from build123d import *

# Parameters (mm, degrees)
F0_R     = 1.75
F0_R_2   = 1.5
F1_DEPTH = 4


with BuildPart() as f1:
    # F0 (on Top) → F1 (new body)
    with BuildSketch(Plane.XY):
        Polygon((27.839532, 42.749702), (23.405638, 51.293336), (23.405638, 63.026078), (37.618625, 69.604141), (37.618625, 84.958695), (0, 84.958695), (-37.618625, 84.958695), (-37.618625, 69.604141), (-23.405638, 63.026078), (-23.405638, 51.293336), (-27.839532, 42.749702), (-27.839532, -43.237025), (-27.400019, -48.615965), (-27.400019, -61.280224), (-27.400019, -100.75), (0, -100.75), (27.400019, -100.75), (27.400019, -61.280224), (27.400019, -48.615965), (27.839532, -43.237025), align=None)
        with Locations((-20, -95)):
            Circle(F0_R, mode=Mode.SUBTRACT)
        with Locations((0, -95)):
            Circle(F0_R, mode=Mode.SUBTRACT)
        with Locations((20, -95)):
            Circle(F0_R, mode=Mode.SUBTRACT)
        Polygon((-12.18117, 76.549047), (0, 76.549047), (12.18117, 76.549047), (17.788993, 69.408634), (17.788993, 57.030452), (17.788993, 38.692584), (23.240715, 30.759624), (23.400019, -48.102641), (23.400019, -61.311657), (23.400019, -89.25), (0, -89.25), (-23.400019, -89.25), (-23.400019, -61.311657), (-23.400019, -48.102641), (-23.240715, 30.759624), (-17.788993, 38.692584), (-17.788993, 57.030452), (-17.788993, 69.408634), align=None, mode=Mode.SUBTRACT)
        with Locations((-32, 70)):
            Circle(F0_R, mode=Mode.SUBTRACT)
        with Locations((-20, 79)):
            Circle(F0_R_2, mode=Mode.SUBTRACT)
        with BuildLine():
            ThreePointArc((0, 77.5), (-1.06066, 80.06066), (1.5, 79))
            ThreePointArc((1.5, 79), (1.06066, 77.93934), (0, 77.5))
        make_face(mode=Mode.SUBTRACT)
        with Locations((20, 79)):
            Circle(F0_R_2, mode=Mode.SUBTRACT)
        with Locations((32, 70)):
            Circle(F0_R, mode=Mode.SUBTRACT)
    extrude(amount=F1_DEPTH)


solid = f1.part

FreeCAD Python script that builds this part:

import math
import FreeCAD as App
import Part
import Sketcher
Q = App.Units.Quantity


def add_polygon(sketch, points):
    """Adds a closed chain of lines whose ends are joined by coincident constraints."""
    first, n = sketch.GeometryCount, len(points)
    for a, b in zip(points, points[1:] + points[:1]):
        sketch.addGeometry(Part.LineSegment(App.Vector(*a, 0), App.Vector(*b, 0)), False)
    for i in range(n):
        sketch.addConstraint(Sketcher.Constraint("Coincident", first + i, 2, first + (i + 1) % n, 1))

doc = App.newDocument("Part")
body = doc.addObject("PartDesign::Body", "Body")

# Sketch on XY plane
sketch1 = body.newObject("Sketcher::SketchObject", "Sketch")
sketch1.AttachmentSupport = (doc.getObject("XY_Plane"), [""])
sketch1.MapMode = "FlatFace"
add_polygon(sketch1, [(27.839532, 42.749702), (23.405638, 51.293336), (23.405638, 63.026078), (37.618625, 69.604141), (37.618625, 84.958695), (-37.618625, 84.958695), (-37.618625, 69.604141), (-23.405638, 63.026078), (-23.405638, 51.293336), (-27.839532, 42.749702), (-27.839532, -43.237025), (-27.400019, -48.615965), (-27.400019, -100.75), (27.400019, -100.75), (27.400019, -48.615965), (27.839532, -43.237025)])  # lines 0-15
sketch1.addGeometry(Part.Circle(App.Vector(-20, -95, 0), App.Vector(0, 0, 1), 1.75), False)  # 16
sketch1.addGeometry(Part.Circle(App.Vector(0, -95, 0), App.Vector(0, 0, 1), 1.75), False)  # 17
sketch1.addGeometry(Part.Circle(App.Vector(20, -95, 0), App.Vector(0, 0, 1), 1.75), False)  # 18
sketch1.addGeometry(Part.Circle(App.Vector(-32, 70, 0), App.Vector(0, 0, 1), 1.75), False)  # 19
sketch1.addGeometry(Part.Circle(App.Vector(-20, 79, 0), App.Vector(0, 0, 1), 1.5), False)  # 20
add_polygon(sketch1, [(-17.788993, 69.408634), (-12.18117, 76.549047), (12.18117, 76.549047), (17.788993, 69.408634), (17.788993, 38.692584), (23.240715, 30.759624), (23.400019, -48.102641), (23.400019, -89.25), (-23.400019, -89.25), (-23.400019, -48.102641), (-23.240715, 30.759624), (-17.788993, 38.692584)])  # lines 21-32
sketch1.addGeometry(Part.ArcOfCircle(Part.Circle(App.Vector(-0.000001, 79.000001, 0), App.Vector(0, 0, 1), 1.500001), math.radians(-89.999978), math.radians(-0.000022)), False)  # 33
sketch1.addGeometry(Part.ArcOfCircle(Part.Circle(App.Vector(0, 79, 0), App.Vector(0, 0, 1), 1.5), math.radians(0.000004), math.radians(269.999996)), False)  # 34
sketch1.addGeometry(Part.Circle(App.Vector(20, 79, 0), App.Vector(0, 0, 1), 1.5), False)  # 35
sketch1.addGeometry(Part.Circle(App.Vector(32, 70, 0), App.Vector(0, 0, 1), 1.75), False)  # 36
sketch1.addConstraint([
    Sketcher.Constraint("Tangent", 33, 1, 34, 2),
    Sketcher.Constraint("Coincident", 34, 1, 33, 2),
    Sketcher.Constraint("Vertical", 1),
    Sketcher.Constraint("Vertical", 3),
    Sketcher.Constraint("Horizontal", 4),
    Sketcher.Constraint("Vertical", 5),
    Sketcher.Constraint("Vertical", 7),
    Sketcher.Constraint("Vertical", 9),
    Sketcher.Constraint("Vertical", 11),
    Sketcher.Constraint("Horizontal", 12),
    Sketcher.Constraint("Vertical", 13),
    Sketcher.Constraint("Vertical", 15),
    Sketcher.Constraint("Horizontal", 22),
    Sketcher.Constraint("Vertical", 24),
    Sketcher.Constraint("Vertical", 27),
    Sketcher.Constraint("Horizontal", 28),
    Sketcher.Constraint("Vertical", 29),
    Sketcher.Constraint("Vertical", 32),
    Sketcher.Constraint("Equal", 16, 17),
    Sketcher.Constraint("Equal", 17, 18),
    Sketcher.Constraint("Equal", 18, 19),
    Sketcher.Constraint("Equal", 20, 33),
    Sketcher.Constraint("Equal", 34, 35),
    Sketcher.Constraint("Equal", 19, 36),
    Sketcher.Constraint("Symmetric", 16, 3, 18, 3, -2),
    Sketcher.Constraint("Symmetric", 20, 3, 35, 3, -2),
    Sketcher.Constraint("Symmetric", 19, 3, 36, 3, -2),
    Sketcher.Constraint("Symmetric", 2, 2, 5, 2, -2),
    Sketcher.Constraint("Symmetric", 1, 2, 6, 2, -2),
    Sketcher.Constraint("Symmetric", 10, 2, 13, 2, -2),
    Sketcher.Constraint("Symmetric", 9, 2, 14, 2, -2),
    Sketcher.Constraint("Symmetric", 26, 2, 29, 2, -2),
    Sketcher.Constraint("Symmetric", 25, 2, 30, 2, -2),
    Sketcher.Constraint("Symmetric", 24, 2, 31, 2, -2),
    Sketcher.Constraint("PointOnObject", 17, 3, -2),
    Sketcher.Constraint("PointOnObject", 33, 3, -2),
    Sketcher.Constraint("PointOnObject", 33, 1, -2),
    Sketcher.Constraint("Horizontal", 16, 3, 17, 3),
    Sketcher.Constraint("Horizontal", 20, 3, 33, 3),
    Sketcher.Constraint("Horizontal", 0, 2, 7, 2),
    Sketcher.Constraint("Horizontal", 8, 2, 15, 2),
    Sketcher.Constraint("Horizontal", 23, 2, 32, 2),
    Sketcher.Constraint("Horizontal", 35, 3, 34, 1),
    Sketcher.Constraint("Vertical", 16, 3, 20, 3),
    Sketcher.Constraint("Equal", 21, 23),
    Sketcher.Constraint("Equal", 8, 25),
    Sketcher.Constraint("Diameter", 20, Q("3 mm")),
    Sketcher.Constraint("Diameter", 16, Q("3.5 mm")),
    Sketcher.Constraint("DistanceX", 16, 3, -1, 1, Q("20 mm")),
    Sketcher.Constraint("DistanceY", 16, 3, -1, 1, Q("95 mm")),
    Sketcher.Constraint("DistanceX", 19, 3, -1, 1, Q("32 mm")),
    Sketcher.Constraint("DistanceY", -1, 1, 19, 3, Q("70 mm")),
    Sketcher.Constraint("DistanceY", -1, 1, 20, 3, Q("79 mm")),
    Sketcher.Constraint("DistanceX", 26, 2, 13, 2, Q("4 mm")),
    Sketcher.Constraint("DistanceY", 12, 2, 27, 2, Q("11.5 mm")),
    Sketcher.Constraint("DistanceY", 11, 2, -1, 1, Q("100.75 mm")),
    Sketcher.Constraint("DistanceX", 4, 2, 4, 1, Q("75.23725 mm")),
    Sketcher.Constraint("DistanceX", 22, 1, 22, 2, Q("24.36234 mm")),
    Sketcher.Constraint("DistanceY", 24, 2, 24, 1, Q("30.71605 mm")),
    Sketcher.Constraint("DistanceY", 27, 2, 27, 1, Q("41.147359 mm")),
    Sketcher.Constraint("DistanceY", 8, 2, 19, 3, Q("27.250298 mm")),
    Sketcher.Constraint("DistanceY", 0, 2, 23, 2, Q("18.115298 mm")),
    Sketcher.Constraint("Distance", 21, Q("9.079272 mm")),
    Sketcher.Constraint("Distance", 25, Q("9.625649 mm")),
    Sketcher.Constraint("DistanceX", 12, 1, 12, 2, Q("54.800038 mm")),
    Sketcher.Constraint("DistanceY", 1, 1, 1, 2, Q("11.732742 mm")),
    Sketcher.Constraint("DistanceY", 3, 1, 3, 2, Q("15.354554 mm")),
    Sketcher.Constraint("DistanceY", 9, 2, 9, 1, Q("85.986727 mm")),
    Sketcher.Constraint("DistanceY", 11, 2, 11, 1, Q("52.134035 mm")),
    Sketcher.Constraint("DistanceX", -1, 1, 0, 2, Q("23.405638 mm")),
    Sketcher.Constraint("DistanceY", -1, 1, 2, 2, Q("69.604141 mm")),
    Sketcher.Constraint("DistanceX", 8, 2, -1, 1, Q("27.839532 mm")),
    Sketcher.Constraint("DistanceY", 6, 2, 21, 2, Q("13.522969 mm")),
    Sketcher.Constraint("DistanceY", 25, 2, 24, 2, Q("7.93296 mm")),
])
pad1 = body.newObject("PartDesign::Pad", "Pad")
pad1.Profile = sketch1
pad1.Length = 4

doc.recompute()
